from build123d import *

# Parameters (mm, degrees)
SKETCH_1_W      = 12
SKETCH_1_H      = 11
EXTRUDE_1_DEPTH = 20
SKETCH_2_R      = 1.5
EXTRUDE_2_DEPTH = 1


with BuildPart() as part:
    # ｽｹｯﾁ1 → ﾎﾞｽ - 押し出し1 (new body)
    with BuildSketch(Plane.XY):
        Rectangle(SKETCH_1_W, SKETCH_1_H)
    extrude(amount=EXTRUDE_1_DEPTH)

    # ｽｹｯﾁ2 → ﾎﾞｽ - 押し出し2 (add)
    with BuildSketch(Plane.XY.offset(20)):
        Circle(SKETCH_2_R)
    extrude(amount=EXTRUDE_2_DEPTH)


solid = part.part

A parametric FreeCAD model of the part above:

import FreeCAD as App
import Part
import Sketcher

V = App.Vector


def add_polygon(sketch, points):
    """Adds a closed chain of lines whose ends are joined by coincident constraints."""
    first, n = sketch.GeometryCount, len(points)
    for a, b in zip(points, points[1:] + points[:1]):
        sketch.addGeometry(Part.LineSegment(App.Vector(*a, 0), App.Vector(*b, 0)), False)
    for i in range(n):
        sketch.addConstraint(Sketcher.Constraint("Coincident", first + i, 2, first + (i + 1) % n, 1))

doc = App.newDocument("Part")
body = doc.addObject("PartDesign::Body", "Body")

# Sketch on XY plane
sketch1 = body.newObject("Sketcher::SketchObject", "Sketch")
sketch1.AttachmentSupport = (doc.getObject("XY_Plane"), [""])
sketch1.MapMode = "FlatFace"
add_polygon(sketch1, [(-6, 5.5), (-6, -5.5), (6, -5.5), (6, 5.5)])  # lines 0-3
sketch1.addConstraint([
    Sketcher.Constraint("Vertical", 0),
    Sketcher.Constraint("Horizontal", 1),
    Sketcher.Constraint("Vertical", 2),
    Sketcher.Constraint("Horizontal", 3),
    Sketcher.Constraint("Symmetric", 0, 2, 2, 2, -1, 1),
    Sketcher.Constraint("DistanceX", 1, 1, 1, 2, 12.0),
    Sketcher.Constraint("DistanceY", 0, 2, 0, 1, 11.0),
])
pad1 = body.newObject("PartDesign::Pad", "Pad")
pad1.Profile = sketch1
pad1.Length = 20

# Sketch on XY plane
sketch2 = body.newObject("Sketcher::SketchObject", "Sketch001")
sketch2.AttachmentSupport = (doc.getObject("XY_Plane"), [""])
sketch2.MapMode = "FlatFace"
sketch2.AttachmentOffset = App.Placement(V(0, 0, 20), App.Rotation())
sketch2.addGeometry(Part.Circle(V(0, 0, 0), V(0, 0, 1), 1.5), False)
sketch2.addConstraint([
    Sketcher.Constraint("Coincident", 0, 3, -1, 1),
    Sketcher.Constraint("Diameter", 0, 3.0),
])
pad2 = body.newObject("PartDesign::Pad", "Pad001")
pad2.Profile = sketch2
pad2.Length = 1

doc.recompute()
